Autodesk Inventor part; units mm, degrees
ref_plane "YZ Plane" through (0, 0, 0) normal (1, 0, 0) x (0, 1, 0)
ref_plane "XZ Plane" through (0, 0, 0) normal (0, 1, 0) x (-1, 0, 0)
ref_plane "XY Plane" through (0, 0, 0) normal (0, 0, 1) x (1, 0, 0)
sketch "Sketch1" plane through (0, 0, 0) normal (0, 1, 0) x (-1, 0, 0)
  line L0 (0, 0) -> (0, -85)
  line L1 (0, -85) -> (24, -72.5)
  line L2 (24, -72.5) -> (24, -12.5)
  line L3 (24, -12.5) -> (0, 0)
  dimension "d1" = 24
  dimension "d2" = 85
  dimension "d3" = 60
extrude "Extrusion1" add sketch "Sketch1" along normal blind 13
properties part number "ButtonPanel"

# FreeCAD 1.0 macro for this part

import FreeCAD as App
import Part
import Sketcher
Q = App.Units.Quantity


def add_polygon(sketch, points):
    """Adds a closed chain of lines whose ends are joined by coincident constraints."""
    first, n = sketch.GeometryCount, len(points)
    for a, b in zip(points, points[1:] + points[:1]):
        sketch.addGeometry(Part.LineSegment(App.Vector(*a, 0), App.Vector(*b, 0)), False)
    for i in range(n):
        sketch.addConstraint(Sketcher.Constraint("Coincident", first + i, 2, first + (i + 1) % n, 1))

doc = App.newDocument("Part")
body = doc.addObject("PartDesign::Body", "Body")

# Sketch on XZ plane
sketch1 = body.newObject("Sketcher::SketchObject", "Sketch")
sketch1.AttachmentSupport = (doc.getObject("XZ_Plane"), [""])
sketch1.MapMode = "FlatFace"
add_polygon(sketch1, [(-24, -12), (0, 0), (0, -85), (-24, -72)])  # lines 0-3
sketch1.addConstraint([
    Sketcher.Constraint("Vertical", 1),
    Sketcher.Constraint("Vertical", 3),
    Sketcher.Constraint("Coincident", 0, 2, -1, 1),
    Sketcher.Constraint("Equal", 0, 2),
    Sketcher.Constraint("DistanceY", 1, 2, 1, 1, Q("85 mm")),
    Sketcher.Constraint("DistanceY", 3, 1, 3, 2, Q("60 mm")),
    Sketcher.Constraint("DistanceX", 2, 2, -1, 1, Q("24 mm")),
])
pad1 = body.newObject("PartDesign::Pad", "Pad")
pad1.Profile = sketch1
pad1.Length = 13
pad1.Reversed = True

doc.recompute()
